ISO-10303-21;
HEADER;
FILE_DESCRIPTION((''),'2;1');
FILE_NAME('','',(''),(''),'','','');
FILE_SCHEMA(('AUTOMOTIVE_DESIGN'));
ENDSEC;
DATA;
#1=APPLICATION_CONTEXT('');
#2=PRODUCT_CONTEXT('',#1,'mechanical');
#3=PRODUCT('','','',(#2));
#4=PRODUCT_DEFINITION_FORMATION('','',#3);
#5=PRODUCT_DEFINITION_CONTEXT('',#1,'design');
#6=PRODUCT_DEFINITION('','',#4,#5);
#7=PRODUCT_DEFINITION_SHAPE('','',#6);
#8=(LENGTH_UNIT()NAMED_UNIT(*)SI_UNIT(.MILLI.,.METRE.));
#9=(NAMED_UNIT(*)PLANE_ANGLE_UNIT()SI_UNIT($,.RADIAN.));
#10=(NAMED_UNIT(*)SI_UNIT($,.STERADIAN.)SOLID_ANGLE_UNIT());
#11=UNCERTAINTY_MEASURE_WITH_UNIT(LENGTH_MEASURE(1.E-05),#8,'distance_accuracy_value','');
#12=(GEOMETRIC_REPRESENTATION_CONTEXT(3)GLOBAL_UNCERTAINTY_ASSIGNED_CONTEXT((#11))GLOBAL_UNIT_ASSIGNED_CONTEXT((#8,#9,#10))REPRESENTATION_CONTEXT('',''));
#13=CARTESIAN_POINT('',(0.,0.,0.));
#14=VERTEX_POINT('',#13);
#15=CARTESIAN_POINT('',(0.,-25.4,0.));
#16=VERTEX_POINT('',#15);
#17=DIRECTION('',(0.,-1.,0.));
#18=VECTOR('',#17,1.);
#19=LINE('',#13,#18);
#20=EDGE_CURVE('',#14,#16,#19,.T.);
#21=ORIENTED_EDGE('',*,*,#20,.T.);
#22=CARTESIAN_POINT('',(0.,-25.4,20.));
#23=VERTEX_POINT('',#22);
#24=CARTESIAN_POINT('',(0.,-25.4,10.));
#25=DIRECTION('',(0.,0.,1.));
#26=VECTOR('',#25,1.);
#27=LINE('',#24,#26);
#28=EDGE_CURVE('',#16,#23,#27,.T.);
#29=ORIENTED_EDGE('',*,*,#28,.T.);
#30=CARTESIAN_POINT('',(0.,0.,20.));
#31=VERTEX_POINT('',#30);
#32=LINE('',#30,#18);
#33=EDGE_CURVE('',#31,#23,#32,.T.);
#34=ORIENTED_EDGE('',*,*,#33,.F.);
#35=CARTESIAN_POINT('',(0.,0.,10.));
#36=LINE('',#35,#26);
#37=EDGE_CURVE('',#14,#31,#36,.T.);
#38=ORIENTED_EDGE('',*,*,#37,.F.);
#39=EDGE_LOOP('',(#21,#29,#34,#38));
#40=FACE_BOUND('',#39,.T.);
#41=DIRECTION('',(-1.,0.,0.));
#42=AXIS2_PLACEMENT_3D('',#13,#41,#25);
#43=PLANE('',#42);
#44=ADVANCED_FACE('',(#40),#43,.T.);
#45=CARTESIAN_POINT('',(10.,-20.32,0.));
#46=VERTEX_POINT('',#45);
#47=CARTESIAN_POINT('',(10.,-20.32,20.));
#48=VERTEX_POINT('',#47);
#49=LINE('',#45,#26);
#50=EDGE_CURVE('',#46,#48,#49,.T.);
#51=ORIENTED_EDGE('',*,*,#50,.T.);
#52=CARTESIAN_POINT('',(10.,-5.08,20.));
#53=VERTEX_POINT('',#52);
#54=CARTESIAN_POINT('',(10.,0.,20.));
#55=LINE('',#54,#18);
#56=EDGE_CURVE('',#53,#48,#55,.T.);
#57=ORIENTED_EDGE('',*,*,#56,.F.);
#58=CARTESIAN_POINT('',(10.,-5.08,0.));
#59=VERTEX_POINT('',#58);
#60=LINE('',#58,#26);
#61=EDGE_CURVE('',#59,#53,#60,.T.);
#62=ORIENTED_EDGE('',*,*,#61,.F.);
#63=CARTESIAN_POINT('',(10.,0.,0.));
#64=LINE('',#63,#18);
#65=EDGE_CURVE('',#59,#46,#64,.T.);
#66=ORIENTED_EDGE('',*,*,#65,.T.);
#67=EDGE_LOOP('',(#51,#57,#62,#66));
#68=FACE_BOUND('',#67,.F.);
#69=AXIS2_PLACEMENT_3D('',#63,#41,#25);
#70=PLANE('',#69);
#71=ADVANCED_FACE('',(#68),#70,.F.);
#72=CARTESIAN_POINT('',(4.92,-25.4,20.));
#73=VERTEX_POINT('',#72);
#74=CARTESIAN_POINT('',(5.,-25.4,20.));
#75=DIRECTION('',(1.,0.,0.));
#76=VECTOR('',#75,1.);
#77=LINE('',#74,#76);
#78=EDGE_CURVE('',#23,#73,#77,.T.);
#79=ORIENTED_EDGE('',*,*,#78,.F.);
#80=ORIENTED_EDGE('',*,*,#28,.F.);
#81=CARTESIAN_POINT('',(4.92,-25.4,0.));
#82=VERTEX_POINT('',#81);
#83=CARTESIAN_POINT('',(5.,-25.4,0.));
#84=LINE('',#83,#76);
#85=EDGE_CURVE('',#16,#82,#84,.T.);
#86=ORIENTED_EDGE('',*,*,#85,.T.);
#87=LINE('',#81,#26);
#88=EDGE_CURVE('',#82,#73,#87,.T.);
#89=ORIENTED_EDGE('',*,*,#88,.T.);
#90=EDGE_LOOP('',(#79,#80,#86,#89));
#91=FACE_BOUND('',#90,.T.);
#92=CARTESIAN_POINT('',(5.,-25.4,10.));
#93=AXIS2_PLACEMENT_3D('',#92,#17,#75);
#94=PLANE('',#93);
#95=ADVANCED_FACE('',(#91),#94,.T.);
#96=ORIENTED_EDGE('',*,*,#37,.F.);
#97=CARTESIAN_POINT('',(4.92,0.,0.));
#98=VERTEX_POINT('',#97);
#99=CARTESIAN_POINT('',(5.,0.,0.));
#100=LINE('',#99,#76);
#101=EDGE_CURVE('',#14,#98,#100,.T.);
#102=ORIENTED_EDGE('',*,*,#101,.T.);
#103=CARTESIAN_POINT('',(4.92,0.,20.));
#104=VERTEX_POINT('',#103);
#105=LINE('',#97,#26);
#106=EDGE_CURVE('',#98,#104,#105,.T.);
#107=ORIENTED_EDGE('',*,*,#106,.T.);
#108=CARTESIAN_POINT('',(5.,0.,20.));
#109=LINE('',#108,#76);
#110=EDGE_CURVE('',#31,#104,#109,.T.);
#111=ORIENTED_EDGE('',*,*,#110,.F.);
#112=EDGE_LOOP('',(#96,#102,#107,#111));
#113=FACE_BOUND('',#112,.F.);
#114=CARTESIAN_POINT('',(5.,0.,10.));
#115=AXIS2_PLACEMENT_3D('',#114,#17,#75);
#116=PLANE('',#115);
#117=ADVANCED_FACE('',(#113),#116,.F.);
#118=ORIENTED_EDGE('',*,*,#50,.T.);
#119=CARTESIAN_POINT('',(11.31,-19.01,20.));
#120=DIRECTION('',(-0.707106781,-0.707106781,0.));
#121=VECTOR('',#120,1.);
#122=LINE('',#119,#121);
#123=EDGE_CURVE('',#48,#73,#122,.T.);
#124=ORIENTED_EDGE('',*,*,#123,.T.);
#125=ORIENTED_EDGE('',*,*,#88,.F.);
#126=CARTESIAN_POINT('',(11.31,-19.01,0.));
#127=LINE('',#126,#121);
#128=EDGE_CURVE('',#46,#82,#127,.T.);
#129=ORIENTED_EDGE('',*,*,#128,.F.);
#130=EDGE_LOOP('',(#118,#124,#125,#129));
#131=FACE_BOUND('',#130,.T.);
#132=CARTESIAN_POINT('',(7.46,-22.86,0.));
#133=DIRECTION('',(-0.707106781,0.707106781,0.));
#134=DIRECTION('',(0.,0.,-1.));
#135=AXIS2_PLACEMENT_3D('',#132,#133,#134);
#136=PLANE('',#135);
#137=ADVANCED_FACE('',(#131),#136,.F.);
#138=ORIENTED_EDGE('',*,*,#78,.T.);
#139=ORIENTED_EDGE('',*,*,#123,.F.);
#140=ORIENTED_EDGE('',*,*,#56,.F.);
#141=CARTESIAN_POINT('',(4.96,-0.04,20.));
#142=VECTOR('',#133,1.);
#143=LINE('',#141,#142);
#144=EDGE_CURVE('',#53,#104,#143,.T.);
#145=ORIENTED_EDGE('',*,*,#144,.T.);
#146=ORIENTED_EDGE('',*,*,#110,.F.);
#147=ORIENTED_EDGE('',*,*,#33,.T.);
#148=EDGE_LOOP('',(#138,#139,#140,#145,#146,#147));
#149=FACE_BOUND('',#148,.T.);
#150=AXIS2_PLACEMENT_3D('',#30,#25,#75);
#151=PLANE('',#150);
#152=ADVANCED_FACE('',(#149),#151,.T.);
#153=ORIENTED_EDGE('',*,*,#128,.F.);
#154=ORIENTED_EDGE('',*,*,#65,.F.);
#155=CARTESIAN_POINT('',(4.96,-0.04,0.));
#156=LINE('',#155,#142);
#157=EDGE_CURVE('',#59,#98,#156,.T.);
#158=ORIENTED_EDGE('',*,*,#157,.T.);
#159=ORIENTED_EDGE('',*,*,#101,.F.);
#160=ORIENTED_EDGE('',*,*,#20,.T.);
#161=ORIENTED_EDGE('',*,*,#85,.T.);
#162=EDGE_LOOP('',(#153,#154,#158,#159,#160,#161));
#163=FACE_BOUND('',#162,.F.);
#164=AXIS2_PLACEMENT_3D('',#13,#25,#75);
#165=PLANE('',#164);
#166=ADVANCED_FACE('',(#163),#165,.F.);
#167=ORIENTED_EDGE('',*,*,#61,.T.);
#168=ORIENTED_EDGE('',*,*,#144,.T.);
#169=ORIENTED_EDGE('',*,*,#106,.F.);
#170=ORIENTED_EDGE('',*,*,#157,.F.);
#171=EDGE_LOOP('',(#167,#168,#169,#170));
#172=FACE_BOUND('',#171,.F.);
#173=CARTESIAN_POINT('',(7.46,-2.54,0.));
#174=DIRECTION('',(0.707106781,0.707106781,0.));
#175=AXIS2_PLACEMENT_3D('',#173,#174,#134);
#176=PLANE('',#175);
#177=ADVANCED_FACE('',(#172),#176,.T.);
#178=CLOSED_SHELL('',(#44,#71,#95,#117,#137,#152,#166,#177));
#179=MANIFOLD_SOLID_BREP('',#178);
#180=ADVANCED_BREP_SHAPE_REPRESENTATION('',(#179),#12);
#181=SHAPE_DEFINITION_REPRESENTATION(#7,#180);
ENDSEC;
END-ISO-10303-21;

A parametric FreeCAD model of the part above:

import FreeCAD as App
import Part
import Sketcher

V = App.Vector


def edges_at(feature, points):
    """Names of the edges that pass closest to the given points."""
    edges = feature.Shape.Edges
    near = lambda p: min(range(len(edges)), key=lambda i: edges[i].distToShape(Part.Vertex(*p))[0])
    return sorted({f"Edge{near(p) + 1}" for p in points})

doc = App.newDocument("Part")
body = doc.addObject("PartDesign::Body", "Body")

# Sketch on XZ plane
sketch1 = body.newObject("Sketcher::SketchObject", "Sketch")
sketch1.AttachmentSupport = (doc.getObject("XZ_Plane"), [""])
sketch1.MapMode = "FlatFace"
sketch1.addGeometry(Part.LineSegment(V(0, 20, 0), V(0, 0, 0)), False)
sketch1.addGeometry(Part.LineSegment(V(0, 0, 0), V(10, 0, 0)), False)
sketch1.addGeometry(Part.LineSegment(V(10, 0, 0), V(10, 20, 0)), False)
sketch1.addGeometry(Part.LineSegment(V(10, 20, 0), V(0, 20, 0)), False)
sketch1.addConstraint(Sketcher.Constraint("Coincident", 0, 2, 1, 1))
sketch1.addConstraint(Sketcher.Constraint("Coincident", 1, 2, 2, 1))
sketch1.addConstraint(Sketcher.Constraint("Coincident", 2, 2, 3, 1))
sketch1.addConstraint(Sketcher.Constraint("Coincident", 3, 2, 0, 1))
sketch1.addConstraint(Sketcher.Constraint("Vertical", 0))
sketch1.addConstraint(Sketcher.Constraint("Horizontal", 1))
sketch1.addConstraint(Sketcher.Constraint("Vertical", 2))
sketch1.addConstraint(Sketcher.Constraint("Horizontal", 3))
sketch1.addConstraint(Sketcher.Constraint("Coincident", 0, 2, -1, 1))
sketch1.addConstraint(Sketcher.Constraint("DistanceX", 1, 1, 1, 2, 10.0))
sketch1.addConstraint(Sketcher.Constraint("DistanceY", 0, 2, 0, 1, 20.0))
pad1 = body.newObject("PartDesign::Pad", "Pad")
pad1.Profile = sketch1
pad1.Length = 25.4
doc.recompute()

chamfer = body.newObject("PartDesign::Chamfer", "Chamfer")
chamfer.Base = (pad1, edges_at(pad1, [(10, -25.4, 10), (10, 0, 10)]))
chamfer.Size = 5.08

doc.recompute()
